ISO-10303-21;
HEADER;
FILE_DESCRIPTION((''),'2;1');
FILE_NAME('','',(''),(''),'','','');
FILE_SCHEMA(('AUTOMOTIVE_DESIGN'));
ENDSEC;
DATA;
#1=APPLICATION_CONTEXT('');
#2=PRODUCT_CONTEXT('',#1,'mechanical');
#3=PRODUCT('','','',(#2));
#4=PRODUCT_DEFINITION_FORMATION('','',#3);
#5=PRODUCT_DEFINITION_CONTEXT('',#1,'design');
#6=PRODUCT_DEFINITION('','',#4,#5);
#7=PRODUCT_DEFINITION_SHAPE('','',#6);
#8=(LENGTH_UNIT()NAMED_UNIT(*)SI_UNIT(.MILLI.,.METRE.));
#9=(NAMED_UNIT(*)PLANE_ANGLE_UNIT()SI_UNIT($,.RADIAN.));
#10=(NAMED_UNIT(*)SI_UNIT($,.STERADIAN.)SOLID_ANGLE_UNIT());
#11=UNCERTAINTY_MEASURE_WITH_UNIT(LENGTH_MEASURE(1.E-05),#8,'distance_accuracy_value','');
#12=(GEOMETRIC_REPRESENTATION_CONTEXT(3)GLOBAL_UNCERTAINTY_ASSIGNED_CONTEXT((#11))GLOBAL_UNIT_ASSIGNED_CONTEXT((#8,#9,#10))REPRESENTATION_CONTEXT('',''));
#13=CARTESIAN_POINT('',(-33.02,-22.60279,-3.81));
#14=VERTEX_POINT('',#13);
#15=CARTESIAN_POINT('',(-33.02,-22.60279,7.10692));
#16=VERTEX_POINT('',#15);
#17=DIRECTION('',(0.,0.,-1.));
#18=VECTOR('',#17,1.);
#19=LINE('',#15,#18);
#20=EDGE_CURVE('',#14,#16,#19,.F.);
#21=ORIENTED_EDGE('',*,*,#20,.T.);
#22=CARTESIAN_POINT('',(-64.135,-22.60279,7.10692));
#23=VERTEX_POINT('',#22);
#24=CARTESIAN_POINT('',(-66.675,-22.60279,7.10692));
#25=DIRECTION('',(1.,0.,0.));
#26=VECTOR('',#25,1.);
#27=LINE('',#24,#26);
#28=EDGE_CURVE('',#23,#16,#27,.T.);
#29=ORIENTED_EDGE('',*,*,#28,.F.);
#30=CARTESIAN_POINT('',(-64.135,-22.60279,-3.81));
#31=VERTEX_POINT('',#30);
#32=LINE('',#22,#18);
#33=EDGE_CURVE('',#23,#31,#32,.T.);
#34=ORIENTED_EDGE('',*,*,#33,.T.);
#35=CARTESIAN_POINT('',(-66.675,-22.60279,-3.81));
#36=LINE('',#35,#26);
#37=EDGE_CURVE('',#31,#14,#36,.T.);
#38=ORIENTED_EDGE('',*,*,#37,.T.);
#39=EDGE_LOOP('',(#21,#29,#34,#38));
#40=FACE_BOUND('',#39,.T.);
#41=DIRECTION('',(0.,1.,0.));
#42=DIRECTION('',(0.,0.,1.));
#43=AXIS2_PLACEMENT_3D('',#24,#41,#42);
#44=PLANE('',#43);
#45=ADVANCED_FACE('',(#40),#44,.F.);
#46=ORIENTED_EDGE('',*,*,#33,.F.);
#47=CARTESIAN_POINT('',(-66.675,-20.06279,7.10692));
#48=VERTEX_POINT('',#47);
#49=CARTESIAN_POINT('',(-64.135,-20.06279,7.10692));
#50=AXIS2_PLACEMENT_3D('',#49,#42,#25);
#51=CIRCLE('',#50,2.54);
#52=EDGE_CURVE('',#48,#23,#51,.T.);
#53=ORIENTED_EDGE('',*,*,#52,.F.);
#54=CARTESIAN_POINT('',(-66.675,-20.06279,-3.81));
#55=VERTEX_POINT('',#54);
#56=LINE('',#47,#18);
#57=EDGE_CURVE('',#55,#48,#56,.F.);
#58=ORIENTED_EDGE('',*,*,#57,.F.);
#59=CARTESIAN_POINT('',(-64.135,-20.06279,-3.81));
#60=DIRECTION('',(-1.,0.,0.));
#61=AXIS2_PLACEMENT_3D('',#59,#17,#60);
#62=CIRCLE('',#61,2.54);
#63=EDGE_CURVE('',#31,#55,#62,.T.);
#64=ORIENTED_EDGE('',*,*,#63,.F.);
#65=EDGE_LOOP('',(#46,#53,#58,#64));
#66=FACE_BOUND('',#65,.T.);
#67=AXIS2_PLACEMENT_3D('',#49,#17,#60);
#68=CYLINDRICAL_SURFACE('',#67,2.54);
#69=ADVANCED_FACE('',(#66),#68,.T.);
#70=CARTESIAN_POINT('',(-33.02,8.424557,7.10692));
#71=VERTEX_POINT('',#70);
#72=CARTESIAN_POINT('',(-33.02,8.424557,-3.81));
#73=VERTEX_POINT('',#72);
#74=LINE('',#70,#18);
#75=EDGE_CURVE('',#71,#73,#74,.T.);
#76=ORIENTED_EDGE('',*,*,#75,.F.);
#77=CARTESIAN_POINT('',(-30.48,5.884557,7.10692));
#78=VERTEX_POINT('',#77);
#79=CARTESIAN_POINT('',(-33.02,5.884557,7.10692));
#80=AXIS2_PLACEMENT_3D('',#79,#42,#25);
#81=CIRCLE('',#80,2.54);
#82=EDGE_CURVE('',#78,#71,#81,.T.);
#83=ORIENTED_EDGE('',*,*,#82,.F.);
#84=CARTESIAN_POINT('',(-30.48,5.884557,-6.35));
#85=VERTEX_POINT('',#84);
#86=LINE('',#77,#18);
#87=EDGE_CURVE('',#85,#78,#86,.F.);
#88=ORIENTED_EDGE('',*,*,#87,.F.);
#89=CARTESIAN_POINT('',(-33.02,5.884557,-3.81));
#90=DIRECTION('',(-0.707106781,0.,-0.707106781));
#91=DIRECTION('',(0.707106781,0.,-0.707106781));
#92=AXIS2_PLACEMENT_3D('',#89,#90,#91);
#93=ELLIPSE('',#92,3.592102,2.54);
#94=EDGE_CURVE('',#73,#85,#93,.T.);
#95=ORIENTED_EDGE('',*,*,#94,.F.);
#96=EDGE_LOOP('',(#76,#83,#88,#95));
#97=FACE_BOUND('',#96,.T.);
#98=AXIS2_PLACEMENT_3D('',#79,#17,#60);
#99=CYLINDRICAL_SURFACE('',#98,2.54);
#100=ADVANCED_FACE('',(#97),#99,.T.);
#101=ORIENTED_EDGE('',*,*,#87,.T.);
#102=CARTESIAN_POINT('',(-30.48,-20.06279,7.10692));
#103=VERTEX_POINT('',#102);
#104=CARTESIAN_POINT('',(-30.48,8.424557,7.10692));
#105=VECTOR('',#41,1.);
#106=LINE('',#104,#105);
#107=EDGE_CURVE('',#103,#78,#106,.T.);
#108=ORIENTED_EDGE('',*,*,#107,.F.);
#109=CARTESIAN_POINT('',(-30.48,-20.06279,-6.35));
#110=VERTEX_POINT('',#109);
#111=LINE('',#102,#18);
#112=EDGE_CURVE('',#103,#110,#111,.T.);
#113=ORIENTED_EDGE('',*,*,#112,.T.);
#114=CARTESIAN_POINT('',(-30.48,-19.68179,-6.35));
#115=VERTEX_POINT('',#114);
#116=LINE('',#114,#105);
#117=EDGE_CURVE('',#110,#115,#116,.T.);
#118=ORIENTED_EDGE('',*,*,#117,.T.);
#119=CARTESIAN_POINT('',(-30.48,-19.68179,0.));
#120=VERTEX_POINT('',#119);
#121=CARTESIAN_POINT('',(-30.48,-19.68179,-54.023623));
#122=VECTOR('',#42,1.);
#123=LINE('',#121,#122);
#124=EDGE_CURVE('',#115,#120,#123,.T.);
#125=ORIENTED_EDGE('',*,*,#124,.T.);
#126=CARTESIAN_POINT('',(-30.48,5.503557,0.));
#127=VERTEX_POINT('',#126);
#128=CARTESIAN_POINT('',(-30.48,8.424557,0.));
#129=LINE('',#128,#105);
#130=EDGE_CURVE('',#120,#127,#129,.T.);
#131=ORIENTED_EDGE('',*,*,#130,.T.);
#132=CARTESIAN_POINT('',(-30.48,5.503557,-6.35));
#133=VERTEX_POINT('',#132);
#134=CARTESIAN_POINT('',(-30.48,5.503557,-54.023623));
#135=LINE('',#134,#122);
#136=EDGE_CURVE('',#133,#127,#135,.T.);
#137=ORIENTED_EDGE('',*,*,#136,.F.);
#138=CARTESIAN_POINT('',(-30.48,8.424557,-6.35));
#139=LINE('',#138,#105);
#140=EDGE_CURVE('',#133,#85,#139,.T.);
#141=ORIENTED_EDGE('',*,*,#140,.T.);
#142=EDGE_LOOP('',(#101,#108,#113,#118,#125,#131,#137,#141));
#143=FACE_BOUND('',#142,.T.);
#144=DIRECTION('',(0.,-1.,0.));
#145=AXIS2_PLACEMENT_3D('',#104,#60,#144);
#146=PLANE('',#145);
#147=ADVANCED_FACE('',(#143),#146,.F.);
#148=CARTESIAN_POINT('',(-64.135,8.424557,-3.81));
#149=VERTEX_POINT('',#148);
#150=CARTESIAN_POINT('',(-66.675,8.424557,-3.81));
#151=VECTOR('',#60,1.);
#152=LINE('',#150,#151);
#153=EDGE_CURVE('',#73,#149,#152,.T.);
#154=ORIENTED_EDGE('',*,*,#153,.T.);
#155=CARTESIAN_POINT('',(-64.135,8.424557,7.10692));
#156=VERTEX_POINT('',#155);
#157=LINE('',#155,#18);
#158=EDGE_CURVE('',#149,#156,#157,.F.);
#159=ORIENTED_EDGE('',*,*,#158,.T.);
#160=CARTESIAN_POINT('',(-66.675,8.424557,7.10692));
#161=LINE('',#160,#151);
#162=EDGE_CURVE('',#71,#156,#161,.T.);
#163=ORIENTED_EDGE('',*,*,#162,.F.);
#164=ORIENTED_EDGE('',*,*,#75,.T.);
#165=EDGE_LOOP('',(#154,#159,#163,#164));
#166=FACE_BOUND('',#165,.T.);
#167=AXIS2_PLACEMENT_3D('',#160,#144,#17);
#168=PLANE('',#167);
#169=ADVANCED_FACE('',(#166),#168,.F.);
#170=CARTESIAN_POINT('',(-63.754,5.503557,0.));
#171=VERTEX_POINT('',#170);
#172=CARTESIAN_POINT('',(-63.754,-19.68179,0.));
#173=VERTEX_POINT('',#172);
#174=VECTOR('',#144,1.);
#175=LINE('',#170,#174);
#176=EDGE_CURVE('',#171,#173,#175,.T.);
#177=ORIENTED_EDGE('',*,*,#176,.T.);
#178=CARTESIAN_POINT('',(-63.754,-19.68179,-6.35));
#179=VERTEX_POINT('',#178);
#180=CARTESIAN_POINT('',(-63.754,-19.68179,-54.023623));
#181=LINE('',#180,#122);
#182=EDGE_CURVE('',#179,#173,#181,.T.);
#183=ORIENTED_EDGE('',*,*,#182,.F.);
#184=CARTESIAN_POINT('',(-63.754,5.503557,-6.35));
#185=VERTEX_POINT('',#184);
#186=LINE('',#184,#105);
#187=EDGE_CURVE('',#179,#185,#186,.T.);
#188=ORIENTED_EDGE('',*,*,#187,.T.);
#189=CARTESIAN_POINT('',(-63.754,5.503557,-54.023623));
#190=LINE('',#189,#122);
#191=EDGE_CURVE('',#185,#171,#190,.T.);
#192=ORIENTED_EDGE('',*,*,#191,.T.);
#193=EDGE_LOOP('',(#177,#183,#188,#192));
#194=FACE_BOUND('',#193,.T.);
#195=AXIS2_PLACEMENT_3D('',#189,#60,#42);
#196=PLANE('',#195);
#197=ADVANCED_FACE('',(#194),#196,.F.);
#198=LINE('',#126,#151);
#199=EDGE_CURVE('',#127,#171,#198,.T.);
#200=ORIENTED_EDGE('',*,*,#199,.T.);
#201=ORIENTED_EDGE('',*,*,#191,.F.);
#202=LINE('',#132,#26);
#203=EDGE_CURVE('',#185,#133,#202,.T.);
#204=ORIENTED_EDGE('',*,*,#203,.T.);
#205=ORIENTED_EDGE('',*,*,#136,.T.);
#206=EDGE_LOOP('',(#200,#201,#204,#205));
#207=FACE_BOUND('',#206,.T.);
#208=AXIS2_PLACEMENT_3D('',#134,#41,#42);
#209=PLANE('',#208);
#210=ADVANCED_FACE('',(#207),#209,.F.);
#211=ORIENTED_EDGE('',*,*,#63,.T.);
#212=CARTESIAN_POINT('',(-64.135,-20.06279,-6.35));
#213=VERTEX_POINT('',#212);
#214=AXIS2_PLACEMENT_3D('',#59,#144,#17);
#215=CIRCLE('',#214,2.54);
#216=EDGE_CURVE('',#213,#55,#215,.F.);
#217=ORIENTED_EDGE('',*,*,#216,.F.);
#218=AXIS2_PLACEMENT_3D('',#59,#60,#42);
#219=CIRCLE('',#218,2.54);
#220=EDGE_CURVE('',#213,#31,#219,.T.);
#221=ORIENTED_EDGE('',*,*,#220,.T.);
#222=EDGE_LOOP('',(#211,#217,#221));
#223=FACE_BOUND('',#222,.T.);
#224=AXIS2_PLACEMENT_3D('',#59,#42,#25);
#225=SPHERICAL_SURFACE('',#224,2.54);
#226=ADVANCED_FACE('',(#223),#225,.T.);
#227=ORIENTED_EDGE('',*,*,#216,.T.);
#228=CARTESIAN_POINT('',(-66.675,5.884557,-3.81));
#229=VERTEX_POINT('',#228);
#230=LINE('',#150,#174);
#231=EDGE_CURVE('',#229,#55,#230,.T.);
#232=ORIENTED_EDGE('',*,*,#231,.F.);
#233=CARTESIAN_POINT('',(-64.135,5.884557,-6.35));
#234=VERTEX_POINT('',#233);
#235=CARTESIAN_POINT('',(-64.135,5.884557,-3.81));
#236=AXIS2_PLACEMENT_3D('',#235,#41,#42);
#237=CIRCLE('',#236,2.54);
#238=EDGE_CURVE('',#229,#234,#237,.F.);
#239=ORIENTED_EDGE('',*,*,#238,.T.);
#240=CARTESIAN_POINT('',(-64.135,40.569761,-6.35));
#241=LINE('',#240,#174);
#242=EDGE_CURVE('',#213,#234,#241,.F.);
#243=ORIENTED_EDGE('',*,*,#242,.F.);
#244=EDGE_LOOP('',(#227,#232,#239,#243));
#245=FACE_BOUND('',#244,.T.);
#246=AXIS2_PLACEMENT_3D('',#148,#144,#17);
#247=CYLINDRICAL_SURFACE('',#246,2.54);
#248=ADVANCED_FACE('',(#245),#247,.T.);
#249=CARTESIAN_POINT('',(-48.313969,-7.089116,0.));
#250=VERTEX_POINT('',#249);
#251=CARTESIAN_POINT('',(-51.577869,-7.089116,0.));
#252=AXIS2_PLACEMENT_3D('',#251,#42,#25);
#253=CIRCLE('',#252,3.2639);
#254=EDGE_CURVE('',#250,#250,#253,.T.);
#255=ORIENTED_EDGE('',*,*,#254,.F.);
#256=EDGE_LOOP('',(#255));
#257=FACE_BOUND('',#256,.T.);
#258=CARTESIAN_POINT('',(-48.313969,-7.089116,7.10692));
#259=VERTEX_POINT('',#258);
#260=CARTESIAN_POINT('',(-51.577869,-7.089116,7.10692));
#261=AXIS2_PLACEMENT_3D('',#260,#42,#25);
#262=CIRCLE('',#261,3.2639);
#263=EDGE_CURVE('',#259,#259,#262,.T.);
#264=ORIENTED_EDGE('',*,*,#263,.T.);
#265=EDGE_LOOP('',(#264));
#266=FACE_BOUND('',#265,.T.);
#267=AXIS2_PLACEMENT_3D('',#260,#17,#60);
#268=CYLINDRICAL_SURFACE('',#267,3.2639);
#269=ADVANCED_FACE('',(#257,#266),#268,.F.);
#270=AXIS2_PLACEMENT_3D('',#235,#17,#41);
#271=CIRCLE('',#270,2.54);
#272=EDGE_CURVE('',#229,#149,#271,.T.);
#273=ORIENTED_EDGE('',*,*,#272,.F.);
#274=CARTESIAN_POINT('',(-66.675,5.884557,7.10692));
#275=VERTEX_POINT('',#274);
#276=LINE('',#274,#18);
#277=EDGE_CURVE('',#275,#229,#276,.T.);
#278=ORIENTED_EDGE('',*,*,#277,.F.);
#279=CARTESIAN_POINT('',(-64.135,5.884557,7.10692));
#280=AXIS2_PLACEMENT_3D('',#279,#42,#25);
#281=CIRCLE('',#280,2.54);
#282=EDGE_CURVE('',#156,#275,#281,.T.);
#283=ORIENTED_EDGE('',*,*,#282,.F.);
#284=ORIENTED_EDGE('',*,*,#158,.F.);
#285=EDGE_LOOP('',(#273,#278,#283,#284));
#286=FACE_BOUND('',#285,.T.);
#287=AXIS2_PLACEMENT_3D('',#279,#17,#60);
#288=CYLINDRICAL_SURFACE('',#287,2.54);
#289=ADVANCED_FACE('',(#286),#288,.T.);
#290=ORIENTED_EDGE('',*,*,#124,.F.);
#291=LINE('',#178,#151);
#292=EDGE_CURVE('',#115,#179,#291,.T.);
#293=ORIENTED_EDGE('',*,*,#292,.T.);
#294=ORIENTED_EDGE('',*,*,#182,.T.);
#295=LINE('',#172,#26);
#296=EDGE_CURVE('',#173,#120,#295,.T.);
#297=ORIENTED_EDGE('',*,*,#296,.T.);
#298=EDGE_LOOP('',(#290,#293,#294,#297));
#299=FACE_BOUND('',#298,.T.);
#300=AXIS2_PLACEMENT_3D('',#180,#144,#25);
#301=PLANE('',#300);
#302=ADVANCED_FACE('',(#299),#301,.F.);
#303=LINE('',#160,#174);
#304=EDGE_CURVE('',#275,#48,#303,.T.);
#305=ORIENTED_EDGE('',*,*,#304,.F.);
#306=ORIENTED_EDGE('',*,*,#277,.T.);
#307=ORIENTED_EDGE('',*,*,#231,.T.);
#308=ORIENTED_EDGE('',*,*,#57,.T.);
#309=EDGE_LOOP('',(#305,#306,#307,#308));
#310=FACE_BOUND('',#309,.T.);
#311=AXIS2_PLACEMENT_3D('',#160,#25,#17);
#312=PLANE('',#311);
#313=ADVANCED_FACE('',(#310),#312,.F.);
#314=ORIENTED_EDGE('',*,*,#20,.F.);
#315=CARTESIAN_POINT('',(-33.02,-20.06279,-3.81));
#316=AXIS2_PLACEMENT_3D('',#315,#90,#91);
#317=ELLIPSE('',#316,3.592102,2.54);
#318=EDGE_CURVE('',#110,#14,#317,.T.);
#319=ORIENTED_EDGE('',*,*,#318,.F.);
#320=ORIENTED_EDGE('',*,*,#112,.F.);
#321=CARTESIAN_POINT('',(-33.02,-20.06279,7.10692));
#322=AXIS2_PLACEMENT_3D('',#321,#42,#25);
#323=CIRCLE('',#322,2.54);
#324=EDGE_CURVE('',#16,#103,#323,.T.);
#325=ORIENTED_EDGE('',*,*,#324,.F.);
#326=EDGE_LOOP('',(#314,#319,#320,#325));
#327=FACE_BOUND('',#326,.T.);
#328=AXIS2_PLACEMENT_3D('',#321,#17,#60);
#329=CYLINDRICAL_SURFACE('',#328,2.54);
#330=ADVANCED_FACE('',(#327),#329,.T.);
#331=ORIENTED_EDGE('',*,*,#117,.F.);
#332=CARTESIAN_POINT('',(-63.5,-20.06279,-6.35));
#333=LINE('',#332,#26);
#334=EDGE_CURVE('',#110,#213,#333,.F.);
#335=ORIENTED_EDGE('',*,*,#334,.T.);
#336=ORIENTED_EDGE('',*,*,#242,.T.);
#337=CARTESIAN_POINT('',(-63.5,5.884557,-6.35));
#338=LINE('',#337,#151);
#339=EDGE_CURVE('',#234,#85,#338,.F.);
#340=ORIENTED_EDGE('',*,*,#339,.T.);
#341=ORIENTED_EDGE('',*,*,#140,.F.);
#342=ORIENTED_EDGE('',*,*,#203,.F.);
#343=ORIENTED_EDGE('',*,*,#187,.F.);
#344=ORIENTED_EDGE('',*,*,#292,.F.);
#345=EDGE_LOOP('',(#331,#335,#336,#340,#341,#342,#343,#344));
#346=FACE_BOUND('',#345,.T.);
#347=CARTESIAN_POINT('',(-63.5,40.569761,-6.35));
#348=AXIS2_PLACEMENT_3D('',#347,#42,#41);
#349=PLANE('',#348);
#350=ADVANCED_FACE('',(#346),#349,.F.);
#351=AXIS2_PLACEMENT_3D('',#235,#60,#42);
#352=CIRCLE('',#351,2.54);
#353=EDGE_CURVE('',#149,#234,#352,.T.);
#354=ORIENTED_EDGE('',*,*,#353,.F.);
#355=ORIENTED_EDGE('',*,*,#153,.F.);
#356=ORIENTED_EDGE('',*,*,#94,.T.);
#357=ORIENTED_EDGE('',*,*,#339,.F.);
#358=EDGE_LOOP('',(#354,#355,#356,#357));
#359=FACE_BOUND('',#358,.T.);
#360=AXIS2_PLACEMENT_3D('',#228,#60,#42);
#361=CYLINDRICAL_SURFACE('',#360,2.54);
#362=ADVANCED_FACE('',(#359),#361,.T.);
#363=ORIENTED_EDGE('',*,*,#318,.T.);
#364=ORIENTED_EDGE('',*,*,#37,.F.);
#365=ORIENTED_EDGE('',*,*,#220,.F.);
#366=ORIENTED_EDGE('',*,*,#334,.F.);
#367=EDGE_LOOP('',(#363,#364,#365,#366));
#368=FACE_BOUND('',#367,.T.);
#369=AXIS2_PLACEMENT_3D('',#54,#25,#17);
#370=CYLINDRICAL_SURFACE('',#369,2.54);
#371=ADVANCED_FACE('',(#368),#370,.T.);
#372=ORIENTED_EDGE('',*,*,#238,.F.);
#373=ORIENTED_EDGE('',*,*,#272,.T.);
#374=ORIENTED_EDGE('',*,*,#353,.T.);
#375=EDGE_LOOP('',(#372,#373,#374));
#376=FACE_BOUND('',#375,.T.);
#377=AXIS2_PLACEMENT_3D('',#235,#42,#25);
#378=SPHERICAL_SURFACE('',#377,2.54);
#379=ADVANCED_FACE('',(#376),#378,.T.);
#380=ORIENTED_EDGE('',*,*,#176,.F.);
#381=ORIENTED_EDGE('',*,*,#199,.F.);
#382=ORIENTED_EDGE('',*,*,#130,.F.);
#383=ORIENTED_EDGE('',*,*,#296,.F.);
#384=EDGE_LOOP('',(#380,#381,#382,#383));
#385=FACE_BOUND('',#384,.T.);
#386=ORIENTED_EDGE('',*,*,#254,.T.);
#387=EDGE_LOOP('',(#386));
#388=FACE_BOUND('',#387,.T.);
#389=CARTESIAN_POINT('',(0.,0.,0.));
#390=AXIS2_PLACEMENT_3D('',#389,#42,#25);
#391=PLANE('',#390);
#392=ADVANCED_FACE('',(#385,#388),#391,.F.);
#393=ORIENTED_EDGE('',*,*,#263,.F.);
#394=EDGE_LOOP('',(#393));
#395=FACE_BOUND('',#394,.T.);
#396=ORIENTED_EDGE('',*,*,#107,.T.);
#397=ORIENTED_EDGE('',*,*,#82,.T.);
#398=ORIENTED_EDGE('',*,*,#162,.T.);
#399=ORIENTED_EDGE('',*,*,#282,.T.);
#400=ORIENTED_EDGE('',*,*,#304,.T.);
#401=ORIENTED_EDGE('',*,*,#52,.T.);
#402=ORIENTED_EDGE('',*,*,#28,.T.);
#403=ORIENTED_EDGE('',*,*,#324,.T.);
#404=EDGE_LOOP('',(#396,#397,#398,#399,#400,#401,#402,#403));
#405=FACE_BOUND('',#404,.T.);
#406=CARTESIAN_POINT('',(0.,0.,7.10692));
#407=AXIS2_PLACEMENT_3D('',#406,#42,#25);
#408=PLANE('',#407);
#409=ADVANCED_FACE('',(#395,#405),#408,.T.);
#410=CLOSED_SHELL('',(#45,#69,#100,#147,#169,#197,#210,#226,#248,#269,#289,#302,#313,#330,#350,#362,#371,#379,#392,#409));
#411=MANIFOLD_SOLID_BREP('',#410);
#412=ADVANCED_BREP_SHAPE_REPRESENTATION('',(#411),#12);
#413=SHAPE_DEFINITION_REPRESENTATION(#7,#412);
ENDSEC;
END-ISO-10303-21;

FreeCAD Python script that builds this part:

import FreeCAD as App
import Part
import Sketcher

V = App.Vector
Q = App.Units.Quantity


def edges_at(feature, points):
    """Names of the edges that pass closest to the given points."""
    edges = feature.Shape.Edges
    near = lambda p: min(range(len(edges)), key=lambda i: edges[i].distToShape(Part.Vertex(*p))[0])
    return sorted({f"Edge{near(p) + 1}" for p in points})


def add_polygon(sketch, points):
    """Adds a closed chain of lines whose ends are joined by coincident constraints."""
    first, n = sketch.GeometryCount, len(points)
    for a, b in zip(points, points[1:] + points[:1]):
        sketch.addGeometry(Part.LineSegment(App.Vector(*a, 0), App.Vector(*b, 0)), False)
    for i in range(n):
        sketch.addConstraint(Sketcher.Constraint("Coincident", first + i, 2, first + (i + 1) % n, 1))

doc = App.newDocument("Part")
body = doc.addObject("PartDesign::Body", "Body")

sketch1 = body.newObject("Sketcher::SketchObject", "Sketch")
sketch1.AttachmentSupport = (doc.getObject("XY_Plane"), [""])
sketch1.MapMode = "FlatFace"
add_polygon(sketch1, [(-66.7, 8.4), (-66.7, -22.6), (-30.5, -22.6), (-30.5, 8.4)])
sketch1.addGeometry(Part.Circle(V(-51.6, -7.1, 0), V(0, 0, 1), 3.3), False)
sketch1.addConstraint([
    Sketcher.Constraint("Vertical", 0),
    Sketcher.Constraint("Horizontal", 1),
    Sketcher.Constraint("Vertical", 2),
    Sketcher.Constraint("Horizontal", 3),
    Sketcher.Constraint("Diameter", 4, Q("0.257 in")),
    Sketcher.Constraint("DistanceX", 1, 2, -1, 1, Q("1.2 in")),
    Sketcher.Constraint("DistanceX", 1, 1, 1, 2, Q("1.425 in")),
    Sketcher.Constraint("DistanceY", 0, 2, 0, 1, Q("31.027348 mm")),
    Sketcher.Constraint("DistanceX", 4, 3, -1, 1, Q("51.577869 mm")),
    Sketcher.Constraint("DistanceY", 0, 2, -1, 1, Q("22.60279 mm")),
    Sketcher.Constraint("DistanceY", 4, 3, -1, 1, Q("7.089116 mm")),
])
pad1 = body.newObject("PartDesign::Pad", "Pad")
pad1.Profile = sketch1
pad1.Length = Q("0.2798 in")

sketch2 = body.newObject("Sketcher::SketchObject", "Sketch001")
sketch2.AttachmentSupport = (doc.getObject("XY_Plane"), [""])
sketch2.MapMode = "FlatFace"
add_polygon(sketch2, [(-30.5, -19.7), (-30.5, -22.6), (-66.7, -22.6), (-66.7, 8.4), (-30.5, 8.4), (-30.5, 5.5), (-63.8, 5.5), (-63.8, -19.7)])
sketch2.addConstraint([
    Sketcher.Constraint("Vertical", 0),
    Sketcher.Constraint("Horizontal", 1),
    Sketcher.Constraint("Vertical", 2),
    Sketcher.Constraint("Horizontal", 3),
    Sketcher.Constraint("Vertical", 4),
    Sketcher.Constraint("Horizontal", 5),
    Sketcher.Constraint("Vertical", 6),
    Sketcher.Constraint("Horizontal", 7),
    Sketcher.Constraint("Vertical", 0, 2, 3, 2),
    Sketcher.Constraint("Equal", 0, 4),
    Sketcher.Constraint("DistanceX", 5, 2, 5, 1, Q("1.31 in")),
    Sketcher.Constraint("DistanceX", 0, 2, -1, 1, Q("1.2 in")),
    Sketcher.Constraint("DistanceX", 1, 2, 1, 1, Q("1.425 in")),
    Sketcher.Constraint("DistanceY", 0, 2, 0, 1, Q("0.115 in")),
    Sketcher.Constraint("DistanceY", 2, 1, 2, 2, Q("31.027348 mm")),
    Sketcher.Constraint("DistanceY", 0, 2, -1, 1, Q("22.60279 mm")),
])
pad2 = body.newObject("PartDesign::Pad", "Pad001")
pad2.Profile = sketch2
pad2.Length = Q("0.25 in")
pad2.Reversed = True
doc.recompute()

fillet = body.newObject("PartDesign::Fillet", "Fillet")
fillet.Base = (pad2, edges_at(pad2, [
    (-48.578, 8.425, -6.35),
    (-66.675, -7.089, -6.35),
    (-48.578, -22.603, -6.35),
    (-66.675, 8.425, 0.378),
    (-30.48, 8.425, 0.378),
    (-30.48, -22.603, 0.378),
    (-66.675, -22.603, 0.378),
]))
fillet.Radius = Q("0.1 in")

doc.recompute()
